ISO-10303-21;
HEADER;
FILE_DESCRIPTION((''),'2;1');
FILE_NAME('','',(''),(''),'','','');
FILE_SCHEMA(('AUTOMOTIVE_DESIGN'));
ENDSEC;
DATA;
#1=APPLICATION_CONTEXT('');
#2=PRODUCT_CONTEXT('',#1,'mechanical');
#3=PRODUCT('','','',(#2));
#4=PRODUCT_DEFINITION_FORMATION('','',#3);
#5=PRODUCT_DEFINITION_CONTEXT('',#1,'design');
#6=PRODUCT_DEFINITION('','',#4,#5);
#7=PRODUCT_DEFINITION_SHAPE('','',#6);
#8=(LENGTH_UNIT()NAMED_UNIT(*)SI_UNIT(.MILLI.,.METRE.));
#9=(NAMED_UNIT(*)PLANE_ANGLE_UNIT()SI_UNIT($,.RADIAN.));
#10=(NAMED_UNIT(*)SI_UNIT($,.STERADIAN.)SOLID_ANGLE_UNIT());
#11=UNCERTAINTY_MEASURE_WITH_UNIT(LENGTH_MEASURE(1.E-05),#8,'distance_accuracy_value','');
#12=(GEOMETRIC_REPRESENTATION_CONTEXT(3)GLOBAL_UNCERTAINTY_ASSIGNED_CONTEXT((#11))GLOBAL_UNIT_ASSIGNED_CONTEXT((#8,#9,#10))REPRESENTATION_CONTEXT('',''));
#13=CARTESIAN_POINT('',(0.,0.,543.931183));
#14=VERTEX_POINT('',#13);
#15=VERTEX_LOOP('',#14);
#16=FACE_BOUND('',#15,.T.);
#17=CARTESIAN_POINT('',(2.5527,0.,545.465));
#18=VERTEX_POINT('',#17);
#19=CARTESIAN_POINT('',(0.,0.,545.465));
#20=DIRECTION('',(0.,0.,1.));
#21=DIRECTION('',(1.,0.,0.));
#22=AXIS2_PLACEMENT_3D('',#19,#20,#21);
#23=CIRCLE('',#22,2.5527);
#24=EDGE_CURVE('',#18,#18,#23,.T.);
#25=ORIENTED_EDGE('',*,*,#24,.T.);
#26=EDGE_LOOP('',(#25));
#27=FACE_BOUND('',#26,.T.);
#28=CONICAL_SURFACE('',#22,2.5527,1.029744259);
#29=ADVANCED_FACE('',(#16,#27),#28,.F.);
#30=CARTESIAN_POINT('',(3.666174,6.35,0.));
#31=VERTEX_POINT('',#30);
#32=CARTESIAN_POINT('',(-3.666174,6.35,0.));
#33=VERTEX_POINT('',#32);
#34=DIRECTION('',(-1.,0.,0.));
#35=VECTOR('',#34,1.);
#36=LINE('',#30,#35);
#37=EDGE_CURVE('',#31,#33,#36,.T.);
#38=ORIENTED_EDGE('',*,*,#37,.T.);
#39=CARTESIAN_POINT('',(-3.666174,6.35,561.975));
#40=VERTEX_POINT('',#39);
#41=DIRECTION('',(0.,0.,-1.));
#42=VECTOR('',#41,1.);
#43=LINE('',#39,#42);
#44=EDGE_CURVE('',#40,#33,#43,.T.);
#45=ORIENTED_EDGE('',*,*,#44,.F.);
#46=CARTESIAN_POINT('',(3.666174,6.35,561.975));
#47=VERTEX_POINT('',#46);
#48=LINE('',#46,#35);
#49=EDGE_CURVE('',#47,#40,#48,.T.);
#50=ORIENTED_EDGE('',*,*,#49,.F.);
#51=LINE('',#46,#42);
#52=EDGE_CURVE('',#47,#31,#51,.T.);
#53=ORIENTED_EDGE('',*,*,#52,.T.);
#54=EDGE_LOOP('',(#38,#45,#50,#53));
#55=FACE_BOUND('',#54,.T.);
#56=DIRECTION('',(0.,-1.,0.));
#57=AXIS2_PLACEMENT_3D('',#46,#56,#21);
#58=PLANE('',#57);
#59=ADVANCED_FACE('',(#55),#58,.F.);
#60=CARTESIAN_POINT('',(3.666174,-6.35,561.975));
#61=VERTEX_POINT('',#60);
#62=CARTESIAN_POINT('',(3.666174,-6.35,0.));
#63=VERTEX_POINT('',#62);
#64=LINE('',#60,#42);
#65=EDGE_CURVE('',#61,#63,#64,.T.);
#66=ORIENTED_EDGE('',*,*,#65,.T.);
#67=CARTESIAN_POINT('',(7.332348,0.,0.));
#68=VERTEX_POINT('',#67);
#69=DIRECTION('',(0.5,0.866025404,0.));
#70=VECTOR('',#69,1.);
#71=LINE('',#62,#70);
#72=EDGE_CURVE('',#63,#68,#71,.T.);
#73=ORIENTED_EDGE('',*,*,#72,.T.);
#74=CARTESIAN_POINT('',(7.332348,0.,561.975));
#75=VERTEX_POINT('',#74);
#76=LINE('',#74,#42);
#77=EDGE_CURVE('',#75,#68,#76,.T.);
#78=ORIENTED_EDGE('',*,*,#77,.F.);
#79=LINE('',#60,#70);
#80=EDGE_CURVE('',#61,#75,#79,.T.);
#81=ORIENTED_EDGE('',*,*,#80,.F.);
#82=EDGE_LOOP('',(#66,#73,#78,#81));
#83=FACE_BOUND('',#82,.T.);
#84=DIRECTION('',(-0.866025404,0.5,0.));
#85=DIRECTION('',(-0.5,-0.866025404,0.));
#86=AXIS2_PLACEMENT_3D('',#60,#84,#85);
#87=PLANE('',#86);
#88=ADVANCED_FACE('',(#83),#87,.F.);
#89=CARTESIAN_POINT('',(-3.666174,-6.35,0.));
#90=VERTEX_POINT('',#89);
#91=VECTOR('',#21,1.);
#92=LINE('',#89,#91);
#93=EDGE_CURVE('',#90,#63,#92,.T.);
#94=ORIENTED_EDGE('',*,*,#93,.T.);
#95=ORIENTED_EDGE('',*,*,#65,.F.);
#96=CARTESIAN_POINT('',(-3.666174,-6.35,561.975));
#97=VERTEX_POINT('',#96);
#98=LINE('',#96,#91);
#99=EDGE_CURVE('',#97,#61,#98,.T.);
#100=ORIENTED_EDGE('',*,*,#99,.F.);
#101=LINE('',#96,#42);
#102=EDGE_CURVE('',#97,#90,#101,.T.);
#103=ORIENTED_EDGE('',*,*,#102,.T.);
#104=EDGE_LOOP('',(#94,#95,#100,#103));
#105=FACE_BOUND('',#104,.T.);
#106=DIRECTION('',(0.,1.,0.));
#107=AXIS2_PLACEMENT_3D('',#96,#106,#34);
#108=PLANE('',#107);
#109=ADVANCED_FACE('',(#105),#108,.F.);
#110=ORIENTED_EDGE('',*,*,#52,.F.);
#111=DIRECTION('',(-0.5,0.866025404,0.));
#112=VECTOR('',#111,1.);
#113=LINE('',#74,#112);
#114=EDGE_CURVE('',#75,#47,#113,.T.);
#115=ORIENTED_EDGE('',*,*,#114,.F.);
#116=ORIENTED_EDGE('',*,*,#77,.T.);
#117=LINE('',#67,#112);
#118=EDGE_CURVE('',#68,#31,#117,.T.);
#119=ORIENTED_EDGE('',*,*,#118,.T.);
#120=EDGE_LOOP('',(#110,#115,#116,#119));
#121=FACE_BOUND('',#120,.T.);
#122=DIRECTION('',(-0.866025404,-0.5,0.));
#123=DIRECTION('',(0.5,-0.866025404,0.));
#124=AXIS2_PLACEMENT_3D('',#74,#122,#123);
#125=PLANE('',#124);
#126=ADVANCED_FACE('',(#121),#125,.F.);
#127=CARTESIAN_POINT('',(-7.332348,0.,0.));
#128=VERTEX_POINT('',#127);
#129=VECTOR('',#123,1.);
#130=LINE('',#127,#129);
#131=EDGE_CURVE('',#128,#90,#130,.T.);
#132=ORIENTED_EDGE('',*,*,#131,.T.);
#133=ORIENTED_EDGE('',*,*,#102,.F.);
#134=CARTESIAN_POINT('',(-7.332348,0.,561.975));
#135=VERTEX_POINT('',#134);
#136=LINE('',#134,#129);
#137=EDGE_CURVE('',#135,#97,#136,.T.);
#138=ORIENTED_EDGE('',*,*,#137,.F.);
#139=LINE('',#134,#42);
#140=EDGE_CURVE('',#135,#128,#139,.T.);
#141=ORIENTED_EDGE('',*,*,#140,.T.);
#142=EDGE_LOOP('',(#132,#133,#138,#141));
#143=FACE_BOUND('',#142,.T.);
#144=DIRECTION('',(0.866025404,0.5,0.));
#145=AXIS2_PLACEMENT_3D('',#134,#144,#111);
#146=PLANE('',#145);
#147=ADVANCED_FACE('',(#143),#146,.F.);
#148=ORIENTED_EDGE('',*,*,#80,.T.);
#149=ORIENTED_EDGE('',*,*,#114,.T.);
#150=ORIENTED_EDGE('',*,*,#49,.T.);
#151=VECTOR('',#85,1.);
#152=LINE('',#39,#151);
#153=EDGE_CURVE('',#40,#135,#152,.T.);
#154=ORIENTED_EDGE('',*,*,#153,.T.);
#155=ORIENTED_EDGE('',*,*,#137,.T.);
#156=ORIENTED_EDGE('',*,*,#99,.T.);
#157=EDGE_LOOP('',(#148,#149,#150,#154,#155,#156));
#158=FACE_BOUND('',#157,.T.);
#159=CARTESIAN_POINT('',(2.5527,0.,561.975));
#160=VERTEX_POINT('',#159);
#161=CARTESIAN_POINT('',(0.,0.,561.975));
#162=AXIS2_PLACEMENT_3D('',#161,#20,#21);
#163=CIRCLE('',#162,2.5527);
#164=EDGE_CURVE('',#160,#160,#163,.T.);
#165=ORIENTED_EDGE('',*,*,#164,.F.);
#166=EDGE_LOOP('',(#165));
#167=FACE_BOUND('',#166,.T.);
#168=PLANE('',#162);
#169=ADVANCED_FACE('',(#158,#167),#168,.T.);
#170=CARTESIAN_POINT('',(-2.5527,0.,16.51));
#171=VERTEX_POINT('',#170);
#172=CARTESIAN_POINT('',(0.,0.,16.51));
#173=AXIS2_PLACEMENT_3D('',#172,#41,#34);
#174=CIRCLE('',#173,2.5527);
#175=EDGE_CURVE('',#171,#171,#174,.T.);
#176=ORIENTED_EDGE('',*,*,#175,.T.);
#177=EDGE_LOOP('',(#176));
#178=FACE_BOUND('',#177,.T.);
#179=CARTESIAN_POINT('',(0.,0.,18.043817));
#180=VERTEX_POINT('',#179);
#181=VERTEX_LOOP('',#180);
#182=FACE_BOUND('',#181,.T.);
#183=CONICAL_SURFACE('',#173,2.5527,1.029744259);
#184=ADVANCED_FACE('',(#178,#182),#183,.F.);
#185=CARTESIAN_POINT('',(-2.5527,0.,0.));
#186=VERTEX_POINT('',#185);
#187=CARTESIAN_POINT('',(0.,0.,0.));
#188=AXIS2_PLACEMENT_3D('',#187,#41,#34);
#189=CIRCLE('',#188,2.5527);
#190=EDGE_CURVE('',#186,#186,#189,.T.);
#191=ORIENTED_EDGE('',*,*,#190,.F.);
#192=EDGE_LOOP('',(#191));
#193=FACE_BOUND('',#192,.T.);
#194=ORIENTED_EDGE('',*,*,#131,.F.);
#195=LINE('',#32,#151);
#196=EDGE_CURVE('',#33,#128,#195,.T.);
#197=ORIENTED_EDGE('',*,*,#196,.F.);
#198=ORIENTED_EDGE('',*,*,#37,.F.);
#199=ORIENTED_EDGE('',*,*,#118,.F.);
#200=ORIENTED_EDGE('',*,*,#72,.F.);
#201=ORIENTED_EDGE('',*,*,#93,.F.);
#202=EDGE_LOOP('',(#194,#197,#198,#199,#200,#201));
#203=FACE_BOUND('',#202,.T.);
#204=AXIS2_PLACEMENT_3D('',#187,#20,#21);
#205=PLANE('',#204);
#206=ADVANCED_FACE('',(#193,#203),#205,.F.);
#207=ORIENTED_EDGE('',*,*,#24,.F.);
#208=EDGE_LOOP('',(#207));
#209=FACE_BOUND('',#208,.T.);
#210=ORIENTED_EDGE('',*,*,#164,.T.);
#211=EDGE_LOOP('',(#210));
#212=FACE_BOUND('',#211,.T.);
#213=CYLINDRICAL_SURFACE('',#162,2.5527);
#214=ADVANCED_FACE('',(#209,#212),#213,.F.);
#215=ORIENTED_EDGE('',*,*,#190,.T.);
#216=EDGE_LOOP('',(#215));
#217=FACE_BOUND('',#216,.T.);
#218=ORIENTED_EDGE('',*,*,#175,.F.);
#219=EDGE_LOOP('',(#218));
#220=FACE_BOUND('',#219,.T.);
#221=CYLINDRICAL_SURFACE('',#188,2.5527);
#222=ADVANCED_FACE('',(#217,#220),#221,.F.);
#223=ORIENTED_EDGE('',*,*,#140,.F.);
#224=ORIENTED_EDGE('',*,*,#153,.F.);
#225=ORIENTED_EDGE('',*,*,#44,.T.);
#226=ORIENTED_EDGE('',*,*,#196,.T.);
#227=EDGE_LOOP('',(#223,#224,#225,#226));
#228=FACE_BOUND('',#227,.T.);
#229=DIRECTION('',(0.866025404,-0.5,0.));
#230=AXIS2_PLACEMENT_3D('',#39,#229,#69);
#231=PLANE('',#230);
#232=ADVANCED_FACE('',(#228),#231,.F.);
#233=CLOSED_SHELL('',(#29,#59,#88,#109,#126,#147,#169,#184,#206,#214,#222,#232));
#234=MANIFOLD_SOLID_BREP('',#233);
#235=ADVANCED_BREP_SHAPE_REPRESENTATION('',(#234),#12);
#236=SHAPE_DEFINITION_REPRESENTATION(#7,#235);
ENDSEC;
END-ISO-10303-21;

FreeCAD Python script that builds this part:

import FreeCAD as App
import Part
import Sketcher
from FreeCAD import Vector
Q = App.Units.Quantity


def add_polygon(sketch, points):
    """Adds a closed chain of lines whose ends are joined by coincident constraints."""
    first, n = sketch.GeometryCount, len(points)
    for a, b in zip(points, points[1:] + points[:1]):
        sketch.addGeometry(Part.LineSegment(App.Vector(*a, 0), App.Vector(*b, 0)), False)
    for i in range(n):
        sketch.addConstraint(Sketcher.Constraint("Coincident", first + i, 2, first + (i + 1) % n, 1))

doc = App.newDocument("Part")
body = doc.addObject("PartDesign::Body", "Body")

sketch1 = body.newObject("Sketcher::SketchObject", "Sketch")
sketch1.AttachmentSupport = (doc.getObject("XY_Plane"), [""])
sketch1.MapMode = "FlatFace"
add_polygon(sketch1, [(7, 0), (4, 6), (-4, 6), (-7, 0), (-4, -6), (4, -6)])
sketch1.addConstraint(Sketcher.Constraint("Horizontal", 1))
sketch1.addConstraint(Sketcher.Constraint("Horizontal", 4))
sketch1.addConstraint(Sketcher.Constraint("Symmetric", 0, 2, 3, 2, -1, 1))
sketch1.addConstraint(Sketcher.Constraint("Symmetric", 2, 2, 5, 2, -1, 1))
sketch1.addConstraint(Sketcher.Constraint("PointOnObject", 2, 2, -1))
sketch1.addConstraint(Sketcher.Constraint("Parallel", 2, 5))
sketch1.addConstraint(Sketcher.Constraint("Vertical", 1, 2, 3, 2))
sketch1.addConstraint(Sketcher.Constraint("Angle", 0, Q("120 deg")))
sketch1.addConstraint(Sketcher.Constraint("DistanceY", 3, 2, 1, 2, Q("0.5 in")))
sketch1.addConstraint(Sketcher.Constraint("DistanceX", 1, 2, 1, 1, Q("7.332348 mm")))
pad1 = body.newObject("PartDesign::Pad", "Pad")
pad1.Profile = sketch1
pad1.Length = Q("22.125 in")

sketch2 = body.newObject("Sketcher::SketchObject", "Sketch001")
sketch2.AttachmentSupport = (doc.getObject("XY_Plane"), [""])
sketch2.MapMode = "FlatFace"
sketch2.AttachmentOffset = App.Placement(Vector(0, 0, 22.125 * 25.4), App.Rotation())
sketch2.addGeometry(Part.Circle(Vector(0, 0, 0), Vector(0, 0, 1), 2.6), False)
sketch2.addConstraint(Sketcher.Constraint("Coincident", 0, 3, -1, 1))
sketch2.addConstraint(Sketcher.Constraint("Diameter", 0, Q("0.201 in")))
doc.recompute()
hole = body.newObject("PartDesign::Hole", "Hole")
hole.Profile = sketch2
hole.ThreadType = "None"
hole.Diameter = Q("0.201 in")
hole.DepthType = "Dimension"
hole.Depth = Q("0.65 in")
hole.DrillPoint = "Angled"
hole.DrillPointAngle = 118

sketch3 = body.newObject("Sketcher::SketchObject", "Sketch002")
sketch3.AttachmentSupport = (doc.getObject("XY_Plane"), [""])
sketch3.MapMode = "FlatFace"
sketch3.addGeometry(Part.Circle(Vector(0, 0, 0), Vector(0, 0, 1), 2.6), False)
sketch3.addConstraint(Sketcher.Constraint("Coincident", 0, 3, -1, 1))
sketch3.addConstraint(Sketcher.Constraint("Diameter", 0, Q("0.201 in")))
doc.recompute()
hole2 = body.newObject("PartDesign::Hole", "Hole001")
hole2.Profile = sketch3
hole2.ThreadType = "None"
hole2.Diameter = Q("0.201 in")
hole2.DepthType = "Dimension"
hole2.Depth = Q("0.65 in")
hole2.DrillPoint = "Angled"
hole2.DrillPointAngle = 118
hole2.Reversed = True

doc.recompute()
